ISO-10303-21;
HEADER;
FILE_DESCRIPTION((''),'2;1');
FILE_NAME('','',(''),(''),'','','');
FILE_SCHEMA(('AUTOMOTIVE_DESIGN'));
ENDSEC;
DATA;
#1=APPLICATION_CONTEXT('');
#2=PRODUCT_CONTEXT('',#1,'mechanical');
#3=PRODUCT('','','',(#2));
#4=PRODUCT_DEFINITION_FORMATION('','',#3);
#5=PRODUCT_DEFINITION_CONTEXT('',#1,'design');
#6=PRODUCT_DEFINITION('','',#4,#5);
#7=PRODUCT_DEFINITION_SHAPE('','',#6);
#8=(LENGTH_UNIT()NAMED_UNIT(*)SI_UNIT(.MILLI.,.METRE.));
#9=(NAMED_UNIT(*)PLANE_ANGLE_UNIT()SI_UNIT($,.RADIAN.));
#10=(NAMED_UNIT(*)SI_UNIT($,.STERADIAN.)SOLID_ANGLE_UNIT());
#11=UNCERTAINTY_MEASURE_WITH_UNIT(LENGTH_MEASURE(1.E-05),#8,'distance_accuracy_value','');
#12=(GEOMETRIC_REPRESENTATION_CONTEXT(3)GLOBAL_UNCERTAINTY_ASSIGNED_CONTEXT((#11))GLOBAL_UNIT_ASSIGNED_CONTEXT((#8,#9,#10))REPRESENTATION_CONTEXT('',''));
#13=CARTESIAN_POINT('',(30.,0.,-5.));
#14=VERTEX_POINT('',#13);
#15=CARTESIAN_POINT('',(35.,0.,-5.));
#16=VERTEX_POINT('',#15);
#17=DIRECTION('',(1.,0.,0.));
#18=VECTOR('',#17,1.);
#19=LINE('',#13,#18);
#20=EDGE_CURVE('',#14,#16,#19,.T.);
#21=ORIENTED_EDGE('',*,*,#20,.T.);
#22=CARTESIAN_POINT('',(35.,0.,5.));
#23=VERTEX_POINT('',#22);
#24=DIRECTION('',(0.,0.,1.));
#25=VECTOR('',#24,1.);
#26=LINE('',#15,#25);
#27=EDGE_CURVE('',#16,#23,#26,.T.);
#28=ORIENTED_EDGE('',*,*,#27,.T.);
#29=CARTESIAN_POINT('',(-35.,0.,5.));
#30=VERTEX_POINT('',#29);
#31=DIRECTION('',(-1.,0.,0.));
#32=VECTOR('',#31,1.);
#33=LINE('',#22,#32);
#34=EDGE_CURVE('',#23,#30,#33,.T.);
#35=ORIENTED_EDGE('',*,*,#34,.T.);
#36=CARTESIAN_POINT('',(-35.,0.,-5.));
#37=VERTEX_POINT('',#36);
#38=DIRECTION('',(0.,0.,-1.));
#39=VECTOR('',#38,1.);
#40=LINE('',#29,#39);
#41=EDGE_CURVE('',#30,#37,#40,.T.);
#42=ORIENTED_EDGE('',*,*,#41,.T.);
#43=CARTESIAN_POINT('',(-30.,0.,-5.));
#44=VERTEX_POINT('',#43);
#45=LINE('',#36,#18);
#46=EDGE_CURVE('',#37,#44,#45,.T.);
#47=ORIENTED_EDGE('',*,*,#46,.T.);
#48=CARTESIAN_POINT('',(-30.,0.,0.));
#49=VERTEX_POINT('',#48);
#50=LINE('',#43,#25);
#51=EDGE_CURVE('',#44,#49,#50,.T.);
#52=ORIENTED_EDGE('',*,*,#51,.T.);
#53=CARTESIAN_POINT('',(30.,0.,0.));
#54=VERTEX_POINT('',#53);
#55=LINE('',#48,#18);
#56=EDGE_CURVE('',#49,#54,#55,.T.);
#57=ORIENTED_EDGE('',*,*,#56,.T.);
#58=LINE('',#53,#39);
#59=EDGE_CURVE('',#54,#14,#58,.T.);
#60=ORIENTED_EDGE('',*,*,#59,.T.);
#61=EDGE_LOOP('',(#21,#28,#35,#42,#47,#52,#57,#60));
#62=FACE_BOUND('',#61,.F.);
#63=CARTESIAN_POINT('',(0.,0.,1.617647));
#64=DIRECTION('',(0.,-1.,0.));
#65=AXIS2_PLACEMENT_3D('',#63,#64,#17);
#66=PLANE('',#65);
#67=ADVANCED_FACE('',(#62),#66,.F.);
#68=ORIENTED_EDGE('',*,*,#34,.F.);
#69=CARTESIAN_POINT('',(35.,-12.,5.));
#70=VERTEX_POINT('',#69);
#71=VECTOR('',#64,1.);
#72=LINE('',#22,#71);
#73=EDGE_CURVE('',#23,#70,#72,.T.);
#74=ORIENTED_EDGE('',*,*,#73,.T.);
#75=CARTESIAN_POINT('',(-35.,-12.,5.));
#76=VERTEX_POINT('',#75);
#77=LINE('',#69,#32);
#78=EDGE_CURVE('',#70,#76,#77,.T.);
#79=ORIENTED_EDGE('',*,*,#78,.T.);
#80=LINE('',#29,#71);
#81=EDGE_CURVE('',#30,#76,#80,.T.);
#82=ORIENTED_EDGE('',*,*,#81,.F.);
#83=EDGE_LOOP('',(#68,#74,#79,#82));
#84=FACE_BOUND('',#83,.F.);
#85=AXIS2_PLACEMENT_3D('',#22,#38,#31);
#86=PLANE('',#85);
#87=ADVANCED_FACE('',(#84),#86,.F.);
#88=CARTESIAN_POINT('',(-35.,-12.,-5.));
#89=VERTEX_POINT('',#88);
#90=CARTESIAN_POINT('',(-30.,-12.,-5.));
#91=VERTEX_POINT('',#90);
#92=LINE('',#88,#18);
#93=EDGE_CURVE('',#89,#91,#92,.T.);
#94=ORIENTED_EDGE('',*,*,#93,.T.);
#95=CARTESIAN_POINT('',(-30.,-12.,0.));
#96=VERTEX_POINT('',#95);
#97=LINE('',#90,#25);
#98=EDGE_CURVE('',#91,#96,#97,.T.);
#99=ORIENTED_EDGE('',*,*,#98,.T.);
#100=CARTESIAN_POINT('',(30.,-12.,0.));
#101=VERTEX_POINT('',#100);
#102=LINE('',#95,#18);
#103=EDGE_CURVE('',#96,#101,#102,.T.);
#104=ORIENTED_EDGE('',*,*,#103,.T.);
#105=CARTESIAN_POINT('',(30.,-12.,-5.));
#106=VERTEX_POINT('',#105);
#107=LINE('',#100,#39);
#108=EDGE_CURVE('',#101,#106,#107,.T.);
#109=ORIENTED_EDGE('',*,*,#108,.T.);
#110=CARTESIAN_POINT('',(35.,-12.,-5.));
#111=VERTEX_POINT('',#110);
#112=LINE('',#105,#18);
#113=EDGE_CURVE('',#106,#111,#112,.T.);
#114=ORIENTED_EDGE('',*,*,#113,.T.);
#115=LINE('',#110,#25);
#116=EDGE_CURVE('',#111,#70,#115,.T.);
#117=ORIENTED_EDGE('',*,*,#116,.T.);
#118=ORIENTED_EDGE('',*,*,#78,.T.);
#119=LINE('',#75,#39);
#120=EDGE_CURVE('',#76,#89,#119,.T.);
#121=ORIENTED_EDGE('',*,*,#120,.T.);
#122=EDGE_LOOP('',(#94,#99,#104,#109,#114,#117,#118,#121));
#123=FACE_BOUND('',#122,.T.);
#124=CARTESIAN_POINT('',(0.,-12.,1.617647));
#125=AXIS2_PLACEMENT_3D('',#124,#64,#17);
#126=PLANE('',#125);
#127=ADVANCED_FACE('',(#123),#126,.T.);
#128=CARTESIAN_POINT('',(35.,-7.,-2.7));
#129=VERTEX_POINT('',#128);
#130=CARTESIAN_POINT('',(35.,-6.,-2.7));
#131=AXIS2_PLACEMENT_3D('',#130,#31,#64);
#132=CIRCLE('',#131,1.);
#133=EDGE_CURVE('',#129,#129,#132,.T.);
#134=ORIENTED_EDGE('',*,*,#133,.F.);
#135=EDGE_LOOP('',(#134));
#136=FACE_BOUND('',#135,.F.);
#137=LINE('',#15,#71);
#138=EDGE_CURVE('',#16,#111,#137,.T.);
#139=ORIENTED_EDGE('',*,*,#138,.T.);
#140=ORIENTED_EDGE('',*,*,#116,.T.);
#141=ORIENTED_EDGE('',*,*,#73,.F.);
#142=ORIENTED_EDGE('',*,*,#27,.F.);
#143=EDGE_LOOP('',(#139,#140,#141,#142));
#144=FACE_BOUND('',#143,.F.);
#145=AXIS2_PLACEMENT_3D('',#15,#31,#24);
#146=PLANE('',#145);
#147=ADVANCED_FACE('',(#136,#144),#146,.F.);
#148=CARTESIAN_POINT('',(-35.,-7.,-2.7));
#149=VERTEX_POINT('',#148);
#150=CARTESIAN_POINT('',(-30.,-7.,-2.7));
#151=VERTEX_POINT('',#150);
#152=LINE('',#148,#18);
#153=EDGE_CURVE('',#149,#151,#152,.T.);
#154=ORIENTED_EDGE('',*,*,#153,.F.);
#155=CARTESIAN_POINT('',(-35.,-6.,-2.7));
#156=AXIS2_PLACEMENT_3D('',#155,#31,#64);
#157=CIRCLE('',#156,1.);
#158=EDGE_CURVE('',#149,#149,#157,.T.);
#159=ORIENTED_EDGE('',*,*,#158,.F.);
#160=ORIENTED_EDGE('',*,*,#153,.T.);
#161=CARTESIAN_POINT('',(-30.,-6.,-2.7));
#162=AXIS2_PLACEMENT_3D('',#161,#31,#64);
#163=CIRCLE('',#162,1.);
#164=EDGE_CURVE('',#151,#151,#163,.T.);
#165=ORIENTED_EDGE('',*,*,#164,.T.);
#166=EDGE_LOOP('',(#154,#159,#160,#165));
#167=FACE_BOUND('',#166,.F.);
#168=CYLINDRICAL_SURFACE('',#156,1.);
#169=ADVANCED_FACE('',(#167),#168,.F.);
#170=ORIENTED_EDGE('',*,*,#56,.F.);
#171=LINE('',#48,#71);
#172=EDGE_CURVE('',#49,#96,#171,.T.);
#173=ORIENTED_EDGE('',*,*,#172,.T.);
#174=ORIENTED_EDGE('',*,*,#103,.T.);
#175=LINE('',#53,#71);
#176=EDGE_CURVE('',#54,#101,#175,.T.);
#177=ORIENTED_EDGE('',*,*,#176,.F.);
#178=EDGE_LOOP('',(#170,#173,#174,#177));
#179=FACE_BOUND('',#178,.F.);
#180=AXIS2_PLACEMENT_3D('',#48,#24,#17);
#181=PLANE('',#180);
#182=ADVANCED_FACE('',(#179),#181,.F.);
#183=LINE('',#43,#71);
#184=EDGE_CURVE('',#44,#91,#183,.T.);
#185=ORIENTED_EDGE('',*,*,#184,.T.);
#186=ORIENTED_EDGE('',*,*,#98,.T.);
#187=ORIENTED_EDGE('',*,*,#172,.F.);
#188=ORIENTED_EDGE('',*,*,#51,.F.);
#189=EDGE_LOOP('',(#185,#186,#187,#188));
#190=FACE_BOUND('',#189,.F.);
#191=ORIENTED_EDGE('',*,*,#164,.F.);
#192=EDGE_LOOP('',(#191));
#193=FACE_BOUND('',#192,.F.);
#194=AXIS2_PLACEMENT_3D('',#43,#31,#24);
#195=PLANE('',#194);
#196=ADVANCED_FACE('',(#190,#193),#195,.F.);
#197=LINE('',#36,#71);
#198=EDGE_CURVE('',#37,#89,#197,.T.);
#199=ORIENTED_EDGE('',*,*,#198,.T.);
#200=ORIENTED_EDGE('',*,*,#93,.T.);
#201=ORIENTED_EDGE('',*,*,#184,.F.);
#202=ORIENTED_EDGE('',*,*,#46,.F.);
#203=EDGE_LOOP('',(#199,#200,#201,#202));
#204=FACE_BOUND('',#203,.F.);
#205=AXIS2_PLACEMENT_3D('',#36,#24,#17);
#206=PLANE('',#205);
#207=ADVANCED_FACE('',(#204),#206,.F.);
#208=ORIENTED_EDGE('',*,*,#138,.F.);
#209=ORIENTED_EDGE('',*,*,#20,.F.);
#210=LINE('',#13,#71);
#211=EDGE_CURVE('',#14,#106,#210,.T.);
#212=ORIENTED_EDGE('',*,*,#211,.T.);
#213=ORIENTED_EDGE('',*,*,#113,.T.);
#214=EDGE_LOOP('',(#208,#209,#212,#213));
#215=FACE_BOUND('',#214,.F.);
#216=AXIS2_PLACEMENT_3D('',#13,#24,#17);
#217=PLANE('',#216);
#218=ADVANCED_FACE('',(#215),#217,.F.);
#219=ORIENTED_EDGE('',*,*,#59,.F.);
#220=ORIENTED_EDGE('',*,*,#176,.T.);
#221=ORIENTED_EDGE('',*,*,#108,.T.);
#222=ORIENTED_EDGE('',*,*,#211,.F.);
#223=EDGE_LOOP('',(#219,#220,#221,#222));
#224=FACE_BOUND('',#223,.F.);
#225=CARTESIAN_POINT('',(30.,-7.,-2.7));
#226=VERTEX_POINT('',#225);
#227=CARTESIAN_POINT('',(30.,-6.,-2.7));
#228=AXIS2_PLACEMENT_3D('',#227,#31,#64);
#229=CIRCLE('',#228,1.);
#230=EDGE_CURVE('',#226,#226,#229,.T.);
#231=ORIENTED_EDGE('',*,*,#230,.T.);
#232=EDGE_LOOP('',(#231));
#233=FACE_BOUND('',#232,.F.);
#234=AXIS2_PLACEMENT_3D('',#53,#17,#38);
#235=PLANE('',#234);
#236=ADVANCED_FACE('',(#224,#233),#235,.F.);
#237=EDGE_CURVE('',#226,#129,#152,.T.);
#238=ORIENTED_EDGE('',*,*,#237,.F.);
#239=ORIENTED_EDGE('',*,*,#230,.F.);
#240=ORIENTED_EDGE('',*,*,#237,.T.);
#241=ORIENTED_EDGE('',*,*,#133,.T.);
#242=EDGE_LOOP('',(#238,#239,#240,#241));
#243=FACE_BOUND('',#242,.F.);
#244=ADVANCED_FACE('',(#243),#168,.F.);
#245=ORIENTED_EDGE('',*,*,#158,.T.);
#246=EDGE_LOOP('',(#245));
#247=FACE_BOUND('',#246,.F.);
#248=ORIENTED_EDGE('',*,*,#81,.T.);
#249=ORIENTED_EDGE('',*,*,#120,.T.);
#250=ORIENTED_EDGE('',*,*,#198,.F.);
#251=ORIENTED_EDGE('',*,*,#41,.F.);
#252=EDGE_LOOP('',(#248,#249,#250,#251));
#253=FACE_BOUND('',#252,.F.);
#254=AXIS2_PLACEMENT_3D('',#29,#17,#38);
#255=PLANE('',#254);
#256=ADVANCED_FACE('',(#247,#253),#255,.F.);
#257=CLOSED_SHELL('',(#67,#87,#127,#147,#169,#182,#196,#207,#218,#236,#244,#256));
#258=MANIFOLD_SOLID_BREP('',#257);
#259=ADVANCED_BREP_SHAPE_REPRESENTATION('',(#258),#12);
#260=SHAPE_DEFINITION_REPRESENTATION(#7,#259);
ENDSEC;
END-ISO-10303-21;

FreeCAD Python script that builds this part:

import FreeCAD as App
import Part
import Sketcher

V = App.Vector


def add_polygon(sketch, points):
    """Adds a closed chain of lines whose ends are joined by coincident constraints."""
    first, n = sketch.GeometryCount, len(points)
    for a, b in zip(points, points[1:] + points[:1]):
        sketch.addGeometry(Part.LineSegment(App.Vector(*a, 0), App.Vector(*b, 0)), False)
    for i in range(n):
        sketch.addConstraint(Sketcher.Constraint("Coincident", first + i, 2, first + (i + 1) % n, 1))

doc = App.newDocument("Part")
body = doc.addObject("PartDesign::Body", "Body")

# Sketch on XZ plane
sketch1 = body.newObject("Sketcher::SketchObject", "Sketch")
sketch1.AttachmentSupport = (doc.getObject("XZ_Plane"), [""])
sketch1.MapMode = "FlatFace"
add_polygon(sketch1, [(-35, 5), (-35, -5), (-30, -5), (-30, 0), (30, 0), (30, -5), (35, -5), (35, 5)])  # lines 0-7
sketch1.addConstraint(Sketcher.Constraint("Vertical", 0))
sketch1.addConstraint(Sketcher.Constraint("Horizontal", 1))
sketch1.addConstraint(Sketcher.Constraint("Vertical", 2))
sketch1.addConstraint(Sketcher.Constraint("Horizontal", 3))
sketch1.addConstraint(Sketcher.Constraint("Vertical", 4))
sketch1.addConstraint(Sketcher.Constraint("Horizontal", 5))
sketch1.addConstraint(Sketcher.Constraint("Vertical", 6))
sketch1.addConstraint(Sketcher.Constraint("Horizontal", 7))
sketch1.addConstraint(Sketcher.Constraint("Symmetric", 2, 2, 3, 2, -1, 1))
sketch1.addConstraint(Sketcher.Constraint("Symmetric", 0, 2, 6, 2, -1, 1))
sketch1.addConstraint(Sketcher.Constraint("Horizontal", 1, 2, 4, 2))
sketch1.addConstraint(Sketcher.Constraint("Equal", 5, 2))
sketch1.addConstraint(Sketcher.Constraint("DistanceX", 1, 1, 1, 2, 5.0))
sketch1.addConstraint(Sketcher.Constraint("DistanceX", 3, 1, 3, 2, 60.0))
pad1 = body.newObject("PartDesign::Pad", "Pad")
pad1.Profile = sketch1
pad1.Length = 12

# Sketch on YZ plane
sketch2 = body.newObject("Sketcher::SketchObject", "Sketch001")
sketch2.AttachmentSupport = (doc.getObject("YZ_Plane"), [""])
sketch2.MapMode = "FlatFace"
sketch2.AttachmentOffset = App.Placement(V(0, 0, -35), App.Rotation())
sketch2.addGeometry(Part.Circle(V(-6, -2.7, 0), V(0, 0, 1), 1), False)
sketch2.addConstraint(Sketcher.Constraint("Diameter", 0, 2.0))
sketch2.addConstraint(Sketcher.Constraint("DistanceX", 0, 3, -1, 1, 6.0))
sketch2.addConstraint(Sketcher.Constraint("DistanceY", 0, 3, -1, 1, 2.7))
pocket1 = body.newObject("PartDesign::Pocket", "Pocket")
pocket1.Profile = sketch2
pocket1.Length = 70
pocket1.Reversed = True

doc.recompute()
